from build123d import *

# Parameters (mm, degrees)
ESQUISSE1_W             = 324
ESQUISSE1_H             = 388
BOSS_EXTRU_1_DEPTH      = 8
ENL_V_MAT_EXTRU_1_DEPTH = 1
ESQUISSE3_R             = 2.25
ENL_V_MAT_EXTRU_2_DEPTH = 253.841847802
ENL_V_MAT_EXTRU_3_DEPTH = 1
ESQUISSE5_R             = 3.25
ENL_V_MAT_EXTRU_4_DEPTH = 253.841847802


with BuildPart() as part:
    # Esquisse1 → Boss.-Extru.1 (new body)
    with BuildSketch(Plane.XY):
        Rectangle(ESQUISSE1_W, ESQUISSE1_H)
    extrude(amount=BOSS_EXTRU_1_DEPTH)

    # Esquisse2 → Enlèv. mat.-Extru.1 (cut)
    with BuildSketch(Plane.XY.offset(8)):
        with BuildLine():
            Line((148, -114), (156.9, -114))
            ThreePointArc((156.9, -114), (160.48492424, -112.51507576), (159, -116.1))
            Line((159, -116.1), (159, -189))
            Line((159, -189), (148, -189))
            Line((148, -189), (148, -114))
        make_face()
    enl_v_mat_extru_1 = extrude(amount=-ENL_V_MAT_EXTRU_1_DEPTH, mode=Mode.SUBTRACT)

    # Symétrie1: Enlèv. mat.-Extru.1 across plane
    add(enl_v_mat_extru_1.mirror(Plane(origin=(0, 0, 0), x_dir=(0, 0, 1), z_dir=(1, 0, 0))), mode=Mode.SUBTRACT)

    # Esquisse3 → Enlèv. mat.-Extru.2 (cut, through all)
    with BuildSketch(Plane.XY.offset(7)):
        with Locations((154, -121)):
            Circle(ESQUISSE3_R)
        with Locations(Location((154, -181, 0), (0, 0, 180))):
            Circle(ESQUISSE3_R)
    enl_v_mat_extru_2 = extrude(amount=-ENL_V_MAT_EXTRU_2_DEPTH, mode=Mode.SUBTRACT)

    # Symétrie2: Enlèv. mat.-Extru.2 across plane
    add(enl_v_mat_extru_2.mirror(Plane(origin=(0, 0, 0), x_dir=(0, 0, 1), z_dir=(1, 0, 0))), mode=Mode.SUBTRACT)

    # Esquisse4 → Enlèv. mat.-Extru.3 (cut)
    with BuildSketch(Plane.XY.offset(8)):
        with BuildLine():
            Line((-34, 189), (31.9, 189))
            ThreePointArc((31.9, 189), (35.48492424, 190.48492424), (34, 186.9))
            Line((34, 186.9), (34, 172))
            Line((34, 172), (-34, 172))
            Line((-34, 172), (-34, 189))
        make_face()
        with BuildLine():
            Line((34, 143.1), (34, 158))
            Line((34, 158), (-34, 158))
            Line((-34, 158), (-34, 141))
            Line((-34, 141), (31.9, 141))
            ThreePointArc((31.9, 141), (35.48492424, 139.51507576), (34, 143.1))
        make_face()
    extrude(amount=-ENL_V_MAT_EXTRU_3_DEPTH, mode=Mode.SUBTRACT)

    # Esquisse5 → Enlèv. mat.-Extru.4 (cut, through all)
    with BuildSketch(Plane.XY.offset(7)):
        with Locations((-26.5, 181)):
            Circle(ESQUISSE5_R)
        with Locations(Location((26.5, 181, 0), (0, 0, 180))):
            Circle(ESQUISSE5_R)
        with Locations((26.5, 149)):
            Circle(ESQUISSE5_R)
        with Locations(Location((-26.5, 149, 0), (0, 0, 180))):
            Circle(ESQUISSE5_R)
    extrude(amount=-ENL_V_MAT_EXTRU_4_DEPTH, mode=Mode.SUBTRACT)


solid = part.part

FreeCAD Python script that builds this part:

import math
import FreeCAD as App
import Part
import Sketcher


def add_polygon(sketch, points):
    """Adds a closed chain of lines whose ends are joined by coincident constraints."""
    first, n = sketch.GeometryCount, len(points)
    for a, b in zip(points, points[1:] + points[:1]):
        sketch.addGeometry(Part.LineSegment(App.Vector(*a, 0), App.Vector(*b, 0)), False)
    for i in range(n):
        sketch.addConstraint(Sketcher.Constraint("Coincident", first + i, 2, first + (i + 1) % n, 1))

doc = App.newDocument("Part")
body = doc.addObject("PartDesign::Body", "Body")

sketch1 = body.newObject("Sketcher::SketchObject", "Sketch")
sketch1.AttachmentSupport = (doc.getObject("XY_Plane"), [""])
sketch1.MapMode = "FlatFace"
add_polygon(sketch1, [(-162, 194), (-162, -194), (162, -194), (162, 194)])
sketch1.addConstraint(Sketcher.Constraint("Vertical", 0))
sketch1.addConstraint(Sketcher.Constraint("Horizontal", 1))
sketch1.addConstraint(Sketcher.Constraint("Vertical", 2))
sketch1.addConstraint(Sketcher.Constraint("Horizontal", 3))
sketch1.addConstraint(Sketcher.Constraint("Symmetric", 0, 2, 2, 2, -1, 1))
sketch1.addConstraint(Sketcher.Constraint("DistanceX", 1, 1, 1, 2, 324.0))
sketch1.addConstraint(Sketcher.Constraint("DistanceY", 0, 2, 0, 1, 388.0))
pad1 = body.newObject("PartDesign::Pad", "Pad")
pad1.Profile = sketch1
pad1.Length = 8

sketch2 = body.newObject("Sketcher::SketchObject", "Sketch001")
sketch2.AttachmentSupport = (doc.getObject("XY_Plane"), [""])
sketch2.MapMode = "FlatFace"
sketch2.AttachmentOffset = App.Placement(App.Vector(0, 0, 8), App.Rotation())
sketch2.addGeometry(Part.LineSegment(App.Vector(156.9, -114, 0), App.Vector(148, -114, 0)), False)
sketch2.addGeometry(Part.LineSegment(App.Vector(148, -114, 0), App.Vector(148, -189, 0)), False)
sketch2.addGeometry(Part.LineSegment(App.Vector(148, -189, 0), App.Vector(159, -189, 0)), False)
sketch2.addGeometry(Part.LineSegment(App.Vector(159, -189, 0), App.Vector(159, -116.1, 0)), False)
sketch2.addGeometry(Part.ArcOfCircle(Part.Circle(App.Vector(159, -114, 0), App.Vector(0, 0, 1), 2.1), math.radians(-90), math.radians(180)), False)
sketch2.addConstraint(Sketcher.Constraint("Coincident", 0, 2, 1, 1))
sketch2.addConstraint(Sketcher.Constraint("Coincident", 1, 2, 2, 1))
sketch2.addConstraint(Sketcher.Constraint("Coincident", 2, 2, 3, 1))
sketch2.addConstraint(Sketcher.Constraint("Coincident", 3, 2, 4, 1))
sketch2.addConstraint(Sketcher.Constraint("Coincident", 4, 2, 0, 1))
sketch2.addConstraint(Sketcher.Constraint("Horizontal", 0))
sketch2.addConstraint(Sketcher.Constraint("Vertical", 1))
sketch2.addConstraint(Sketcher.Constraint("Horizontal", 2))
sketch2.addConstraint(Sketcher.Constraint("Vertical", 3))
sketch2.addConstraint(Sketcher.Constraint("Horizontal", 4, 3, 0, 2))
sketch2.addConstraint(Sketcher.Constraint("Vertical", 4, 3, 2, 2))
sketch2.addConstraint(Sketcher.Constraint("Radius", 4, 2.1))
sketch2.addConstraint(Sketcher.Constraint("DistanceX", 2, 1, 2, 2, 11.0))
sketch2.addConstraint(Sketcher.Constraint("DistanceY", 1, 2, 1, 1, 75.0))
sketch2.addConstraint(Sketcher.Constraint("DistanceX", -1, 1, 4, 3, 159.0))
sketch2.addConstraint(Sketcher.Constraint("DistanceY", 4, 3, -1, 1, 114.0))
pocket1 = body.newObject("PartDesign::Pocket", "Pocket")
pocket1.Profile = sketch2
pocket1.Length = 1
doc.recompute()

mirrored = body.newObject("PartDesign::Mirrored", "Mirrored")
mirrored.Originals = [pocket1]
mirrored.MirrorPlane = (doc.getObject("YZ_Plane"), [""])
body.Tip = mirrored

sketch3 = body.newObject("Sketcher::SketchObject", "Sketch002")
sketch3.AttachmentSupport = (doc.getObject("XY_Plane"), [""])
sketch3.MapMode = "FlatFace"
sketch3.AttachmentOffset = App.Placement(App.Vector(0, 0, 7), App.Rotation())
sketch3.addGeometry(Part.Circle(App.Vector(154, -121, 0), App.Vector(0, 0, 1), 2.2), False)
sketch3.addGeometry(Part.Circle(App.Vector(154, -181, 0), App.Vector(0, 0, 1), 2.2), False)
sketch3.addConstraint(Sketcher.Constraint("Equal", 0, 1))
sketch3.addConstraint(Sketcher.Constraint("Vertical", 0, 3, 1, 3))
sketch3.addConstraint(Sketcher.Constraint("Diameter", 0, 4.5))
sketch3.addConstraint(Sketcher.Constraint("DistanceX", -1, 1, 0, 3, 154.0))
sketch3.addConstraint(Sketcher.Constraint("DistanceY", 0, 3, -1, 1, 121.0))
sketch3.addConstraint(Sketcher.Constraint("DistanceY", 1, 3, -1, 1, 181.0))
pocket2 = body.newObject("PartDesign::Pocket", "Pocket001")
pocket2.Profile = sketch3
pocket2.Type = "ThroughAll"
doc.recompute()

mirrored2 = body.newObject("PartDesign::Mirrored", "Mirrored001")
mirrored2.Originals = [pocket2]
mirrored2.MirrorPlane = (doc.getObject("YZ_Plane"), [""])
body.Tip = mirrored2

sketch4 = body.newObject("Sketcher::SketchObject", "Sketch003")
sketch4.AttachmentSupport = (doc.getObject("XY_Plane"), [""])
sketch4.MapMode = "FlatFace"
sketch4.AttachmentOffset = App.Placement(App.Vector(0, 0, 8), App.Rotation())
sketch4.addGeometry(Part.LineSegment(App.Vector(31.9, 189, 0), App.Vector(-34, 189, 0)), False)
sketch4.addGeometry(Part.LineSegment(App.Vector(-34, 189, 0), App.Vector(-34, 172, 0)), False)
sketch4.addGeometry(Part.LineSegment(App.Vector(-34, 172, 0), App.Vector(34, 172, 0)), False)
sketch4.addGeometry(Part.LineSegment(App.Vector(34, 172, 0), App.Vector(34, 186.9, 0)), False)
sketch4.addGeometry(Part.ArcOfCircle(Part.Circle(App.Vector(34, 189, 0), App.Vector(0, 0, 1), 2.1), math.radians(-90), math.radians(180)), False)
sketch4.addGeometry(Part.LineSegment(App.Vector(34, 143.1, 0), App.Vector(34, 158, 0)), False)
sketch4.addGeometry(Part.LineSegment(App.Vector(34, 158, 0), App.Vector(-34, 158, 0)), False)
sketch4.addGeometry(Part.LineSegment(App.Vector(-34, 158, 0), App.Vector(-34, 141, 0)), False)
sketch4.addGeometry(Part.LineSegment(App.Vector(-34, 141, 0), App.Vector(31.9, 141, 0)), False)
sketch4.addGeometry(Part.ArcOfCircle(Part.Circle(App.Vector(34, 141, 0), App.Vector(0, 0, 1), 2.1), math.radians(180), math.radians(450)), False)
sketch4.addConstraint(Sketcher.Constraint("Coincident", 0, 2, 1, 1))
sketch4.addConstraint(Sketcher.Constraint("Coincident", 1, 2, 2, 1))
sketch4.addConstraint(Sketcher.Constraint("Coincident", 2, 2, 3, 1))
sketch4.addConstraint(Sketcher.Constraint("Coincident", 3, 2, 4, 1))
sketch4.addConstraint(Sketcher.Constraint("Coincident", 4, 2, 0, 1))
sketch4.addConstraint(Sketcher.Constraint("Coincident", 5, 2, 6, 1))
sketch4.addConstraint(Sketcher.Constraint("Coincident", 6, 2, 7, 1))
sketch4.addConstraint(Sketcher.Constraint("Coincident", 7, 2, 8, 1))
sketch4.addConstraint(Sketcher.Constraint("Coincident", 8, 2, 9, 1))
sketch4.addConstraint(Sketcher.Constraint("Coincident", 9, 2, 5, 1))
sketch4.addConstraint(Sketcher.Constraint("Horizontal", 0))
sketch4.addConstraint(Sketcher.Constraint("Vertical", 1))
sketch4.addConstraint(Sketcher.Constraint("Horizontal", 2))
sketch4.addConstraint(Sketcher.Constraint("Vertical", 3))
sketch4.addConstraint(Sketcher.Constraint("Vertical", 5))
sketch4.addConstraint(Sketcher.Constraint("Horizontal", 6))
sketch4.addConstraint(Sketcher.Constraint("Vertical", 7))
sketch4.addConstraint(Sketcher.Constraint("Horizontal", 8))
sketch4.addConstraint(Sketcher.Constraint("Equal", 4, 9))
sketch4.addConstraint(Sketcher.Constraint("Horizontal", 4, 3, 0, 2))
sketch4.addConstraint(Sketcher.Constraint("Horizontal", 9, 3, 7, 2))
sketch4.addConstraint(Sketcher.Constraint("Vertical", 4, 3, 9, 3))
sketch4.addConstraint(Sketcher.Constraint("Vertical", 9, 3, 2, 2))
sketch4.addConstraint(Sketcher.Constraint("Vertical", 3, 2, 5, 2))
sketch4.addConstraint(Sketcher.Constraint("Vertical", 1, 2, 6, 2))
sketch4.addConstraint(Sketcher.Constraint("Equal", 3, 5))
sketch4.addConstraint(Sketcher.Constraint("Radius", 4, 2.1))
sketch4.addConstraint(Sketcher.Constraint("DistanceX", 2, 1, 2, 2, 68.0))
sketch4.addConstraint(Sketcher.Constraint("DistanceY", 1, 2, 1, 1, 17.0))
sketch4.addConstraint(Sketcher.Constraint("DistanceX", -1, 1, 4, 3, 34.0))
sketch4.addConstraint(Sketcher.Constraint("DistanceY", -1, 1, 4, 3, 189.0))
sketch4.addConstraint(Sketcher.Constraint("DistanceY", -1, 1, 9, 3, 141.0))
pocket3 = body.newObject("PartDesign::Pocket", "Pocket002")
pocket3.Profile = sketch4
pocket3.Length = 1

sketch5 = body.newObject("Sketcher::SketchObject", "Sketch004")
sketch5.AttachmentSupport = (doc.getObject("XY_Plane"), [""])
sketch5.MapMode = "FlatFace"
sketch5.AttachmentOffset = App.Placement(App.Vector(0, 0, 7), App.Rotation())
sketch5.addGeometry(Part.Circle(App.Vector(-26.5, 181, 0), App.Vector(0, 0, 1), 3.2), False)
sketch5.addGeometry(Part.Circle(App.Vector(26.5, 181, 0), App.Vector(0, 0, 1), 3.2), False)
sketch5.addGeometry(Part.Circle(App.Vector(26.5, 149, 0), App.Vector(0, 0, 1), 3.2), False)
sketch5.addGeometry(Part.Circle(App.Vector(-26.5, 149, 0), App.Vector(0, 0, 1), 3.2), False)
sketch5.addConstraint(Sketcher.Constraint("Equal", 0, 1))
sketch5.addConstraint(Sketcher.Constraint("Equal", 1, 2))
sketch5.addConstraint(Sketcher.Constraint("Equal", 2, 3))
sketch5.addConstraint(Sketcher.Constraint("Symmetric", 0, 3, 1, 3, -2))
sketch5.addConstraint(Sketcher.Constraint("Symmetric", 2, 3, 3, 3, -2))
sketch5.addConstraint(Sketcher.Constraint("Vertical", 1, 3, 2, 3))
sketch5.addConstraint(Sketcher.Constraint("Diameter", 0, 6.5))
sketch5.addConstraint(Sketcher.Constraint("DistanceY", -1, 1, 0, 3, 181.0))
sketch5.addConstraint(Sketcher.Constraint("DistanceY", -1, 1, 2, 3, 149.0))
sketch5.addConstraint(Sketcher.Constraint("DistanceX", 0, 3, 1, 3, 53.0))
pocket4 = body.newObject("PartDesign::Pocket", "Pocket003")
pocket4.Profile = sketch5
pocket4.Type = "ThroughAll"

doc.recompute()
